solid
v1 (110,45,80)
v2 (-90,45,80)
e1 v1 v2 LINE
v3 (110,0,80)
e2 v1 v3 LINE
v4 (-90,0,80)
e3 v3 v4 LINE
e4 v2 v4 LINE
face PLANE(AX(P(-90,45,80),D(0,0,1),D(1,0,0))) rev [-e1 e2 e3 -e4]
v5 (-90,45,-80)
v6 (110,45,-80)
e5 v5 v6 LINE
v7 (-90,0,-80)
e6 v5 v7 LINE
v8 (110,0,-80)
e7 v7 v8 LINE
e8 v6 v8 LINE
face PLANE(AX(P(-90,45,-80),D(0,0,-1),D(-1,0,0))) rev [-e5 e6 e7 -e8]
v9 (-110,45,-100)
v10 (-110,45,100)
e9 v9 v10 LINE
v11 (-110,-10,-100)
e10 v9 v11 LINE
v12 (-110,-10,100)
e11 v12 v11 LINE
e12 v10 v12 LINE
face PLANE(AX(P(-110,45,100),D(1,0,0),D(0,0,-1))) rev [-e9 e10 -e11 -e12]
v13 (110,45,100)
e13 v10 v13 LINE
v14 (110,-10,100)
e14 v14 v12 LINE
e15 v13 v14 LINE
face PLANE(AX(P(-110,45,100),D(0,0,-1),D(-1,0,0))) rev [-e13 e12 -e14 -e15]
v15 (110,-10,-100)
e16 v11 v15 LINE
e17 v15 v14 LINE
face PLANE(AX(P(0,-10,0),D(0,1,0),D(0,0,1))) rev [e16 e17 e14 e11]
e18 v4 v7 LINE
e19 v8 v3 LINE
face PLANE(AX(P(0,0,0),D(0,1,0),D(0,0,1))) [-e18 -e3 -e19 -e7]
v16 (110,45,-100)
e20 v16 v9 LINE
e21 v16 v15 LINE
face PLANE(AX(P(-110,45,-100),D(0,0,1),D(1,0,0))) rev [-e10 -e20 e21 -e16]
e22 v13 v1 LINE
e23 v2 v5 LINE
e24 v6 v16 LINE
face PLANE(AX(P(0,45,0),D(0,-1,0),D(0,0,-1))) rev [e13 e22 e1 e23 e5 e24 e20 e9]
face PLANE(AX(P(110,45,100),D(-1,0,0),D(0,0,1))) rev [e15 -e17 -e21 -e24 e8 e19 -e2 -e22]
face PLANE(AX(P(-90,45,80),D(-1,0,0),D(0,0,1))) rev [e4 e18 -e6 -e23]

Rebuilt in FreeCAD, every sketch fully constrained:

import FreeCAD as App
import Part
import Sketcher

doc = App.newDocument("Part")
body = doc.addObject("PartDesign::Body", "Body")

sketch1 = body.newObject("Sketcher::SketchObject", "Sketch")
sketch1.AttachmentSupport = (doc.getObject("XZ_Plane"), [""])
sketch1.MapMode = "FlatFace"
sketch1.addGeometry([
    Part.LineSegment(App.Vector(-110, -100, 0), App.Vector(-110, 100, 0)),
    Part.LineSegment(App.Vector(-110, 100, 0), App.Vector(110, 100, 0)),
    Part.LineSegment(App.Vector(110, 100, 0), App.Vector(110, 80, 0)),
    Part.LineSegment(App.Vector(110, 80, 0), App.Vector(-90, 80, 0)),
    Part.LineSegment(App.Vector(-90, 80, 0), App.Vector(-90, -80, 0)),
    Part.LineSegment(App.Vector(-90, -80, 0), App.Vector(110, -80, 0)),
    Part.LineSegment(App.Vector(110, -80, 0), App.Vector(110, -100, 0)),
    Part.LineSegment(App.Vector(110, -100, 0), App.Vector(-110, -100, 0)),
], False)
sketch1.addConstraint([
    Sketcher.Constraint("Coincident", 0, 2, 1, 1),
    Sketcher.Constraint("Coincident", 1, 2, 2, 1),
    Sketcher.Constraint("Coincident", 2, 2, 3, 1),
    Sketcher.Constraint("Coincident", 3, 2, 4, 1),
    Sketcher.Constraint("Coincident", 4, 2, 5, 1),
    Sketcher.Constraint("Coincident", 5, 2, 6, 1),
    Sketcher.Constraint("Coincident", 6, 2, 7, 1),
    Sketcher.Constraint("Coincident", 7, 2, 0, 1),
    Sketcher.Constraint("Vertical", 0),
    Sketcher.Constraint("Horizontal", 1),
    Sketcher.Constraint("Vertical", 2),
    Sketcher.Constraint("Horizontal", 3),
    Sketcher.Constraint("Vertical", 4),
    Sketcher.Constraint("Horizontal", 5),
    Sketcher.Constraint("Vertical", 6),
    Sketcher.Constraint("Horizontal", 7),
    Sketcher.Constraint("Symmetric", 0, 2, 6, 2, -1, 1),
    Sketcher.Constraint("Symmetric", 2, 2, 5, 2, -1),
    Sketcher.Constraint("Equal", 5, 0),
    Sketcher.Constraint("DistanceX", 1, 1, 1, 2, 220.0),
    Sketcher.Constraint("DistanceX", 3, 2, 3, 1, 200.0),
    Sketcher.Constraint("DistanceY", 2, 2, 2, 1, 20.0),
])
pad1 = body.newObject("PartDesign::Pad", "Pad")
pad1.Profile = sketch1
pad1.Length = 45
pad1.Reversed = True

sketch2 = body.newObject("Sketcher::SketchObject", "Sketch001")
sketch2.AttachmentSupport = (doc.getObject("XZ_Plane"), [""])
sketch2.MapMode = "FlatFace"
sketch2.addGeometry([
    Part.LineSegment(App.Vector(110, -100, 0), App.Vector(110, 100, 0)),
    Part.LineSegment(App.Vector(110, 100, 0), App.Vector(-110, 100, 0)),
    Part.LineSegment(App.Vector(-110, 100, 0), App.Vector(-110, -100, 0)),
    Part.LineSegment(App.Vector(-110, -100, 0), App.Vector(110, -100, 0)),
], False)
sketch2.addConstraint([
    Sketcher.Constraint("Coincident", 0, 2, 1, 1),
    Sketcher.Constraint("Coincident", 1, 2, 2, 1),
    Sketcher.Constraint("Coincident", 2, 2, 3, 1),
    Sketcher.Constraint("Coincident", 3, 2, 0, 1),
    Sketcher.Constraint("Vertical", 0),
    Sketcher.Constraint("Horizontal", 1),
    Sketcher.Constraint("Vertical", 2),
    Sketcher.Constraint("Horizontal", 3),
    Sketcher.Constraint("Symmetric", 0, 2, 2, 2, -1, 1),
    Sketcher.Constraint("DistanceX", 1, 2, 1, 1, 220.0),
    Sketcher.Constraint("DistanceY", 0, 1, 0, 2, 200.0),
])
pad2 = body.newObject("PartDesign::Pad", "Pad001")
pad2.Profile = sketch2
pad2.Length = 10

doc.recompute()
